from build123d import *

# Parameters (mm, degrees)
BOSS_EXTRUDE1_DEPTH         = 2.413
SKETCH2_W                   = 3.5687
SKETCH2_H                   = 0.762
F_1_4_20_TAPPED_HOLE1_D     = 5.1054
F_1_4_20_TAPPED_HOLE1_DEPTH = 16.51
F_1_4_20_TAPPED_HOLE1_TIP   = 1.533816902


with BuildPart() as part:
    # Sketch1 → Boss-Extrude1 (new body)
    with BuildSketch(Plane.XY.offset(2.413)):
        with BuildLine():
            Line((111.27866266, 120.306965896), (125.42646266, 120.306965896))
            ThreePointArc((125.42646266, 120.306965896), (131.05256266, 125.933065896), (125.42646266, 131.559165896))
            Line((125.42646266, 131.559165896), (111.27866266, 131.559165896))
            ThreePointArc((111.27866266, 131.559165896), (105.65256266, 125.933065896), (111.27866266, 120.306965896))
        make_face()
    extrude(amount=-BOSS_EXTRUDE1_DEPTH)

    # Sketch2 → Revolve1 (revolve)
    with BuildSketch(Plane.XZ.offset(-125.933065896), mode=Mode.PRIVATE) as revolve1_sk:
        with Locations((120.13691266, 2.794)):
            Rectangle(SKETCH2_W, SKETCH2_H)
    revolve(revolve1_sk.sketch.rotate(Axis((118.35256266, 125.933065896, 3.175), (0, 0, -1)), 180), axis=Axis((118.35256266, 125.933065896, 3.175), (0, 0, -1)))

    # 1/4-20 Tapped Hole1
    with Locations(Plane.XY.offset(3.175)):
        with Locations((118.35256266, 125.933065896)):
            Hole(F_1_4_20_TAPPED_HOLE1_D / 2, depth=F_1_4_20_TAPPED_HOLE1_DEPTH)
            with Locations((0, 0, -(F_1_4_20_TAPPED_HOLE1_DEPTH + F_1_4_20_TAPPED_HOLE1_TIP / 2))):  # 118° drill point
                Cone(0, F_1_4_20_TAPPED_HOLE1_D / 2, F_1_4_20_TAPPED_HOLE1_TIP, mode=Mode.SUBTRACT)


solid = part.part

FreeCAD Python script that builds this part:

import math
import FreeCAD as App
import Part
import Sketcher
Q = App.Units.Quantity

doc = App.newDocument("Part")
body = doc.addObject("PartDesign::Body", "Body")

# Sketch on XY plane
sketch1 = doc.addObject("Sketcher::SketchObject", "Sketch")
body.addObject(sketch1)
sketch1.AttachmentSupport = (doc.XY_Plane, [""])
sketch1.MapMode = "FlatFace"
sketch1.AttachmentOffset = App.Placement(App.Vector(0, 0, 0.095 * 25.4), App.Rotation())
sketch1.addGeometry([
    Part.LineSegment(App.Vector(111, 120, 0), App.Vector(125, 120, 0)),
    Part.ArcOfCircle(Part.Circle(App.Vector(125, 126, 0), App.Vector(0, 0, 1), 6), math.radians(-90), math.radians(90)),
    Part.LineSegment(App.Vector(125, 132, 0), App.Vector(111, 132, 0)),
    Part.ArcOfCircle(Part.Circle(App.Vector(111, 126, 0), App.Vector(0, 0, 1), 6), math.radians(90), math.radians(270)),
], False)
sketch1.addConstraint([
    Sketcher.Constraint("Tangent", 0, 2, 1, 1),
    Sketcher.Constraint("Tangent", 1, 2, 2, 1),
    Sketcher.Constraint("Tangent", 2, 2, 3, 1),
    Sketcher.Constraint("Tangent", 3, 2, 0, 1),
    Sketcher.Constraint("Horizontal", 0),
    Sketcher.Constraint("Horizontal", 2),
    Sketcher.Constraint("Radius", 1, Q("0.2215 in")),
    Sketcher.Constraint("DistanceX", 0, 1, 0, 2, Q("0.557 in")),
    Sketcher.Constraint("DistanceX", -1, 1, 1, 3, 125.426463),
    Sketcher.Constraint("DistanceY", -1, 1, 1, 3, 125.933066),
])
pad1 = doc.addObject("PartDesign::Pad", "Pad")
body.addObject(pad1)
pad1.Profile = sketch1
pad1.Length = Q("0.095 in")
pad1.Reversed = True

# Sketch on XZ plane
sketch2 = doc.addObject("Sketcher::SketchObject", "Sketch001")
body.addObject(sketch2)
sketch2.AttachmentSupport = (doc.XZ_Plane, [""])
sketch2.MapMode = "FlatFace"
sketch2.AttachmentOffset = App.Placement(App.Vector(0, 0, -125.933066), App.Rotation())
sketch2.addGeometry([
    Part.LineSegment(App.Vector(118.4, 3.2, 0), App.Vector(118.4, 2.4, 0)),
    Part.LineSegment(App.Vector(118.4, 2.4, 0), App.Vector(121.9, 2.4, 0)),
    Part.LineSegment(App.Vector(121.9, 2.4, 0), App.Vector(121.9, 3.2, 0)),
    Part.LineSegment(App.Vector(121.9, 3.2, 0), App.Vector(118.4, 3.2, 0)),
], False)
sketch2.addGeometry(Part.LineSegment(App.Vector(118.4, 3.2, 0), App.Vector(118.4, 2.4, 0)), True)  # axis
sketch2.addConstraint([
    Sketcher.Constraint("Coincident", 0, 2, 1, 1),
    Sketcher.Constraint("Coincident", 1, 2, 2, 1),
    Sketcher.Constraint("Coincident", 2, 2, 3, 1),
    Sketcher.Constraint("Coincident", 3, 2, 0, 1),
    Sketcher.Constraint("Vertical", 0),
    Sketcher.Constraint("Horizontal", 1),
    Sketcher.Constraint("Vertical", 2),
    Sketcher.Constraint("Horizontal", 3),
    Sketcher.Constraint("Vertical", 4),
    Sketcher.Constraint("Coincident", 4, 1, 3, 2),
    Sketcher.Constraint("Horizontal", 1, 2, 4, 2),
    Sketcher.Constraint("DistanceY", 0, 2, 0, 1, Q("0.03 in")),
    Sketcher.Constraint("DistanceX", 1, 1, 1, 2, Q("0.1405 in")),
    Sketcher.Constraint("DistanceY", -1, 1, 0, 2, Q("0.095 in")),
    Sketcher.Constraint("DistanceX", -1, 1, 0, 2, 118.352563),
])
revolution = doc.addObject("PartDesign::Revolution", "Revolution")
body.addObject(revolution)
revolution.Profile = sketch2
revolution.ReferenceAxis = (sketch2, ["Axis0"])
revolution.Angle = 360

# Sketch on XY plane
sketch3 = doc.addObject("Sketcher::SketchObject", "Sketch002")
body.addObject(sketch3)
sketch3.AttachmentSupport = (doc.XY_Plane, [""])
sketch3.MapMode = "FlatFace"
sketch3.AttachmentOffset = App.Placement(App.Vector(0, 0, 0.125 * 25.4), App.Rotation())
sketch3.addGeometry(Part.Circle(App.Vector(118.4, 125.9, 0), App.Vector(0, 0, 1), 2.6), False)
sketch3.addConstraint([
    Sketcher.Constraint("Diameter", 0, Q("0.201 in")),
    Sketcher.Constraint("DistanceX", -1, 1, 0, 3, 118.352563),
    Sketcher.Constraint("DistanceY", -1, 1, 0, 3, 125.933066),
])
doc.recompute()
hole = doc.addObject("PartDesign::Hole", "Hole")
body.addObject(hole)
hole.Profile = sketch3
hole.ThreadType = "None"
hole.Diameter = Q("0.201 in")
hole.DepthType = "Dimension"
hole.Depth = Q("0.65 in")
hole.DrillPoint = "Angled"
hole.DrillPointAngle = 118

doc.recompute()
